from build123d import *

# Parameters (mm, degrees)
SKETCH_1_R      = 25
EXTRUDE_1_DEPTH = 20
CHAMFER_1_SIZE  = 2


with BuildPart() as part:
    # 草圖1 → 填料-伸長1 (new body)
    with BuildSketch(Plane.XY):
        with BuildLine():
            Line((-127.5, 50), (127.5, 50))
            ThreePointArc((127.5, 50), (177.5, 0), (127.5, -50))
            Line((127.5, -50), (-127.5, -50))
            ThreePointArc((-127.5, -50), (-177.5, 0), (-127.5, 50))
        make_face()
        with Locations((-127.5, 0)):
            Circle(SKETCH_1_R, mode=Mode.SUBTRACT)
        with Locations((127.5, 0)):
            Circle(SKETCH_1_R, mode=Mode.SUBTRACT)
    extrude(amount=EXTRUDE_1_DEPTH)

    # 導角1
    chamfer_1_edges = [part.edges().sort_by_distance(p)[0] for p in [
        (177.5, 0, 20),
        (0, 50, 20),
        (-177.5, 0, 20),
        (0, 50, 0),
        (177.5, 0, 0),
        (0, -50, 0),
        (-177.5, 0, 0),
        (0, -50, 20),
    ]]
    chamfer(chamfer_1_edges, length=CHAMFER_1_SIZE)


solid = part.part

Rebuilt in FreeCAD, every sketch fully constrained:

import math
import FreeCAD as App
import Part
import Sketcher


def edges_at(feature, points):
    """Names of the edges that pass closest to the given points."""
    edges = feature.Shape.Edges
    near = lambda p: min(range(len(edges)), key=lambda i: edges[i].distToShape(Part.Vertex(*p))[0])
    return sorted({f"Edge{near(p) + 1}" for p in points})

doc = App.newDocument("Part")
body = doc.addObject("PartDesign::Body", "Body")

# Sketch on XY plane
sketch1 = body.newObject("Sketcher::SketchObject", "Sketch")
sketch1.AttachmentSupport = (doc.getObject("XY_Plane"), [""])
sketch1.MapMode = "FlatFace"
sketch1.addGeometry([
    Part.LineSegment(App.Vector(128, 50, 0), App.Vector(-128, 50, 0)),  # 0
    Part.ArcOfCircle(Part.Circle(App.Vector(-128, 0, 0), App.Vector(0, 0, 1), 50), math.radians(90), math.radians(270)),  # 1
    Part.LineSegment(App.Vector(-128, -50, 0), App.Vector(128, -50, 0)),  # 2
    Part.ArcOfCircle(Part.Circle(App.Vector(128, 0, 0), App.Vector(0, 0, 1), 50), math.radians(-90), math.radians(90)),  # 3
    Part.Circle(App.Vector(128, 0, 0), App.Vector(0, 0, 1), 25),  # 4
    Part.Circle(App.Vector(-128, 0, 0), App.Vector(0, 0, 1), 25),  # 5
], False)
sketch1.addConstraint([
    Sketcher.Constraint("Tangent", 0, 2, 1, 1),
    Sketcher.Constraint("Tangent", 1, 2, 2, 1),
    Sketcher.Constraint("Tangent", 2, 2, 3, 1),
    Sketcher.Constraint("Tangent", 3, 2, 0, 1),
    Sketcher.Constraint("Horizontal", 0),
    Sketcher.Constraint("Horizontal", 2),
    Sketcher.Constraint("Coincident", 4, 3, 3, 3),
    Sketcher.Constraint("Coincident", 5, 3, 1, 3),
    Sketcher.Constraint("Equal", 4, 5),
    Sketcher.Constraint("Symmetric", 1, 3, 3, 3, -1, 1),
    Sketcher.Constraint("Diameter", 4, 50.0),
    Sketcher.Constraint("Radius", 1, 50.0),
    Sketcher.Constraint("DistanceX", 0, 2, 0, 1, 255.0),
])
pad1 = body.newObject("PartDesign::Pad", "Pad")
pad1.Profile = sketch1
pad1.Length = 20
doc.recompute()

chamfer = body.newObject("PartDesign::Chamfer", "Chamfer")
chamfer.Base = (pad1, edges_at(pad1, [
    (177.5, 0, 20),
    (0, 50, 20),
    (-177.5, 0, 20),
    (0, 50, 0),
    (177.5, 0, 0),
    (0, -50, 0),
    (-177.5, 0, 0),
    (0, -50, 20),
]))
chamfer.Size = 2

doc.recompute()
